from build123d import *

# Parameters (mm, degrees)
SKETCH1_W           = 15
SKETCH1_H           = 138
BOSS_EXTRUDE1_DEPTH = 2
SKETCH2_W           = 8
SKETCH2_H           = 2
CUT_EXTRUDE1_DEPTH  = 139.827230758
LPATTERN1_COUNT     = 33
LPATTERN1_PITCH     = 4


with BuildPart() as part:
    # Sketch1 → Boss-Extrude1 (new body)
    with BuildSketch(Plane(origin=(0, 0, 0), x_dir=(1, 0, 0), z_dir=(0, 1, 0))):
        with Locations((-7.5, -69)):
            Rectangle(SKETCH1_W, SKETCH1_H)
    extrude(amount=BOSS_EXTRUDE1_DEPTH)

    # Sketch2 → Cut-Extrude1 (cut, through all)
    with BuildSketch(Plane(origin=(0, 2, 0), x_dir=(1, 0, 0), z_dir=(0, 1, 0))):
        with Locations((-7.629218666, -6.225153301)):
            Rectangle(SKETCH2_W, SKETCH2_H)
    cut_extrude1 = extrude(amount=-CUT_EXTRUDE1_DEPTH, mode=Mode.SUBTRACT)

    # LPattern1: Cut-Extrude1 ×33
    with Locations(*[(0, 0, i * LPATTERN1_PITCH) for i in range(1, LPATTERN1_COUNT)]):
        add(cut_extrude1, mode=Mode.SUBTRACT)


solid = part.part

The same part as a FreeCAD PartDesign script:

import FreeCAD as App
import Part
import Sketcher


def add_polygon(sketch, points):
    """Adds a closed chain of lines whose ends are joined by coincident constraints."""
    first, n = sketch.GeometryCount, len(points)
    for a, b in zip(points, points[1:] + points[:1]):
        sketch.addGeometry(Part.LineSegment(App.Vector(*a, 0), App.Vector(*b, 0)), False)
    for i in range(n):
        sketch.addConstraint(Sketcher.Constraint("Coincident", first + i, 2, first + (i + 1) % n, 1))

doc = App.newDocument("Part")
params = doc.addObject("Spreadsheet::Sheet", "Params")
for row, (alias, value) in enumerate([
    ("sketch1_width", "15 mm"),
    ("sketch1_height", "138 mm"),
    ("pad1_length", "2 mm"),
    ("sketch2_width", "8 mm"),
    ("sketch2_height", "2 mm"),
    ("linearpattern_pitch", "4 mm"),
], start=1):
    params.set(f"A{row}", alias)
    params.set(f"B{row}", "=" + value)
    params.setAlias(f"B{row}", alias)

body = doc.addObject("PartDesign::Body", "Body")

sketch1 = body.newObject("Sketcher::SketchObject", "Sketch")
sketch1.AttachmentSupport = (doc.getObject("XZ_Plane"), [""])
sketch1.MapMode = "FlatFace"
add_polygon(sketch1, [(-15, 0), (-15, 138), (0, 138), (0, 0)])
sketch1.addConstraint([
    Sketcher.Constraint("Vertical", 0),
    Sketcher.Constraint("Horizontal", 1),
    Sketcher.Constraint("Vertical", 2),
    Sketcher.Constraint("Horizontal", 3),
    Sketcher.Constraint("Coincident", 2, 2, -1, 1),
    Sketcher.Constraint("DistanceX", 1, 1, 1, 2, 15.0),
    Sketcher.Constraint("DistanceY", 0, 1, 0, 2, 138.0),
])
sketch1.setExpression("Constraints[9]", "Params.sketch1_width")
sketch1.setExpression("Constraints[10]", "Params.sketch1_height")
pad1 = body.newObject("PartDesign::Pad", "Pad")
pad1.Profile = sketch1
pad1.setExpression("Length", "Params.pad1_length")
pad1.Reversed = True

sketch2 = body.newObject("Sketcher::SketchObject", "Sketch001")
sketch2.AttachmentSupport = (doc.getObject("XZ_Plane"), [""])
sketch2.MapMode = "FlatFace"
sketch2.AttachmentOffset = App.Placement(App.Vector(0, 0, -2), App.Rotation())
add_polygon(sketch2, [(-11.6, 5.2), (-11.6, 7.2), (-3.6, 7.2), (-3.6, 5.2)])
sketch2.addConstraint([
    Sketcher.Constraint("Vertical", 0),
    Sketcher.Constraint("Horizontal", 1),
    Sketcher.Constraint("Vertical", 2),
    Sketcher.Constraint("Horizontal", 3),
    Sketcher.Constraint("DistanceX", 1, 1, 1, 2, 8.0),
    Sketcher.Constraint("DistanceY", 0, 1, 0, 2, 2.0),
    Sketcher.Constraint("DistanceX", 0, 2, -1, 1, 11.629219),
    Sketcher.Constraint("DistanceY", -1, 1, 0, 2, 7.225153),
])
sketch2.setExpression("Constraints[8]", "Params.sketch2_width")
sketch2.setExpression("Constraints[9]", "Params.sketch2_height")
pocket1 = body.newObject("PartDesign::Pocket", "Pocket")
pocket1.Profile = sketch2
pocket1.Type = "ThroughAll"
pocket1.Reversed = True
doc.recompute()

linearpattern = body.newObject("PartDesign::LinearPattern", "LinearPattern")
linearpattern.Originals = [pocket1]
linearpattern.Direction = (doc.getObject("Z_Axis"), [""])
linearpattern.Mode = "offset"
linearpattern.setExpression("Offset", "Params.linearpattern_pitch")
linearpattern.Occurrences = 33
body.Tip = linearpattern

doc.recompute()
